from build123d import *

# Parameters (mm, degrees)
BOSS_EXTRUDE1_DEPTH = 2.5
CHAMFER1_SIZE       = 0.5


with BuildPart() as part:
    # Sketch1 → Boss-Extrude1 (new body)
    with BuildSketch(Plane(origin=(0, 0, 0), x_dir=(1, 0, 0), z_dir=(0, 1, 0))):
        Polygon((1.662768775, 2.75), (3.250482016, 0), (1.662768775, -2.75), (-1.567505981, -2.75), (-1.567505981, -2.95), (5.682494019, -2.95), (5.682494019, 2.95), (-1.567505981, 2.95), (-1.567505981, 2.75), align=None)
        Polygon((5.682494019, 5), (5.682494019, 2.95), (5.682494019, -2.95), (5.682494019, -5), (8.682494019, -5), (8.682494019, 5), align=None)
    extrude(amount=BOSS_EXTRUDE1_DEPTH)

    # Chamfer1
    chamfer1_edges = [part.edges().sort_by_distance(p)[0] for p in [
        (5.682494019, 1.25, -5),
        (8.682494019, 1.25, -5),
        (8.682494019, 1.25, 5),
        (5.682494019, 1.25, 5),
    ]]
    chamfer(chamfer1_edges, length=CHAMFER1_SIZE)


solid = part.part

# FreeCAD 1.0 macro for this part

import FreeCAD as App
import Part
import Sketcher
from FreeCAD import Vector
Q = App.Units.Quantity


def edges_at(feature, points):
    """Names of the edges that pass closest to the given points."""
    edges = feature.Shape.Edges
    near = lambda p: min(range(len(edges)), key=lambda i: edges[i].distToShape(Part.Vertex(*p))[0])
    return sorted({f"Edge{near(p) + 1}" for p in points})

doc = App.newDocument("Part")
body = doc.addObject("PartDesign::Body", "Body")

# Sketch on XZ plane
sketch1 = body.newObject("Sketcher::SketchObject", "Sketch")
sketch1.AttachmentSupport = (doc.getObject("XZ_Plane"), [""])
sketch1.MapMode = "FlatFace"
sketch1.addGeometry([
    Part.LineSegment(Vector(1.66, -2.75, 0), Vector(3.25, 0, 0)),  # 0
    Part.LineSegment(Vector(3.25, 0, 0), Vector(1.66, 2.75, 0)),  # 1
    Part.LineSegment(Vector(1.66, 2.75, 0), Vector(-1.57, 2.75, 0)),  # 2
    Part.LineSegment(Vector(-1.57, 2.75, 0), Vector(-1.57, 2.95, 0)),  # 3
    Part.LineSegment(Vector(-1.57, 2.95, 0), Vector(5.68, 2.95, 0)),  # 4
    Part.LineSegment(Vector(5.68, 2.95, 0), Vector(5.68, 5, 0)),  # 5
    Part.LineSegment(Vector(5.68, 5, 0), Vector(8.68, 5, 0)),  # 6
    Part.LineSegment(Vector(8.68, 5, 0), Vector(8.68, -5, 0)),  # 7
    Part.LineSegment(Vector(8.68, -5, 0), Vector(5.68, -5, 0)),  # 8
    Part.LineSegment(Vector(5.68, -5, 0), Vector(5.68, -2.95, 0)),  # 9
    Part.LineSegment(Vector(5.68, -2.95, 0), Vector(-1.57, -2.95, 0)),  # 10
    Part.LineSegment(Vector(-1.57, -2.95, 0), Vector(-1.57, -2.75, 0)),  # 11
    Part.LineSegment(Vector(-1.57, -2.75, 0), Vector(1.66, -2.75, 0)),  # 12
], False)
sketch1.addConstraint([
    Sketcher.Constraint("Coincident", 0, 2, 1, 1),
    Sketcher.Constraint("Coincident", 1, 2, 2, 1),
    Sketcher.Constraint("Coincident", 2, 2, 3, 1),
    Sketcher.Constraint("Coincident", 3, 2, 4, 1),
    Sketcher.Constraint("Coincident", 4, 2, 5, 1),
    Sketcher.Constraint("Coincident", 5, 2, 6, 1),
    Sketcher.Constraint("Coincident", 6, 2, 7, 1),
    Sketcher.Constraint("Coincident", 7, 2, 8, 1),
    Sketcher.Constraint("Coincident", 8, 2, 9, 1),
    Sketcher.Constraint("Coincident", 9, 2, 10, 1),
    Sketcher.Constraint("Coincident", 10, 2, 11, 1),
    Sketcher.Constraint("Coincident", 11, 2, 12, 1),
    Sketcher.Constraint("Coincident", 12, 2, 0, 1),
    Sketcher.Constraint("Horizontal", 2),
    Sketcher.Constraint("Vertical", 3),
    Sketcher.Constraint("Horizontal", 4),
    Sketcher.Constraint("Vertical", 5),
    Sketcher.Constraint("Horizontal", 6),
    Sketcher.Constraint("Vertical", 7),
    Sketcher.Constraint("Horizontal", 8),
    Sketcher.Constraint("Vertical", 9),
    Sketcher.Constraint("Horizontal", 10),
    Sketcher.Constraint("Vertical", 11),
    Sketcher.Constraint("Horizontal", 12),
    Sketcher.Constraint("Symmetric", 5, 2, 8, 2, -1),
    Sketcher.Constraint("Symmetric", 3, 2, 10, 2, -1),
    Sketcher.Constraint("Symmetric", 1, 2, 12, 2, -1),
    Sketcher.Constraint("PointOnObject", 0, 2, -1),
    Sketcher.Constraint("DistanceX", 6, 1, 6, 2, Q("3 mm")),
    Sketcher.Constraint("DistanceY", 7, 2, 7, 1, Q("10 mm")),
    Sketcher.Constraint("Angle", 0, Q("60 deg")),
    Sketcher.Constraint("DistanceY", 3, 1, 3, 2, Q("0.2 mm")),
    Sketcher.Constraint("DistanceX", 4, 1, 4, 2, Q("7.25 mm")),
    Sketcher.Constraint("DistanceY", 5, 1, 5, 2, Q("2.05 mm")),
    Sketcher.Constraint("DistanceX", 2, 2, 2, 1, Q("3.230275 mm")),
    Sketcher.Constraint("DistanceX", -1, 1, 1, 2, Q("1.662769 mm")),
])
pad1 = body.newObject("PartDesign::Pad", "Pad")
pad1.Profile = sketch1
pad1.Length = 2.5
pad1.Reversed = True
doc.recompute()

chamfer = body.newObject("PartDesign::Chamfer", "Chamfer")
chamfer.Base = (pad1, edges_at(pad1, [
    (5.682, 1.25, -5),
    (8.682, 1.25, -5),
    (8.682, 1.25, 5),
    (5.682, 1.25, 5),
]))
chamfer.Size = 0.5

doc.recompute()
